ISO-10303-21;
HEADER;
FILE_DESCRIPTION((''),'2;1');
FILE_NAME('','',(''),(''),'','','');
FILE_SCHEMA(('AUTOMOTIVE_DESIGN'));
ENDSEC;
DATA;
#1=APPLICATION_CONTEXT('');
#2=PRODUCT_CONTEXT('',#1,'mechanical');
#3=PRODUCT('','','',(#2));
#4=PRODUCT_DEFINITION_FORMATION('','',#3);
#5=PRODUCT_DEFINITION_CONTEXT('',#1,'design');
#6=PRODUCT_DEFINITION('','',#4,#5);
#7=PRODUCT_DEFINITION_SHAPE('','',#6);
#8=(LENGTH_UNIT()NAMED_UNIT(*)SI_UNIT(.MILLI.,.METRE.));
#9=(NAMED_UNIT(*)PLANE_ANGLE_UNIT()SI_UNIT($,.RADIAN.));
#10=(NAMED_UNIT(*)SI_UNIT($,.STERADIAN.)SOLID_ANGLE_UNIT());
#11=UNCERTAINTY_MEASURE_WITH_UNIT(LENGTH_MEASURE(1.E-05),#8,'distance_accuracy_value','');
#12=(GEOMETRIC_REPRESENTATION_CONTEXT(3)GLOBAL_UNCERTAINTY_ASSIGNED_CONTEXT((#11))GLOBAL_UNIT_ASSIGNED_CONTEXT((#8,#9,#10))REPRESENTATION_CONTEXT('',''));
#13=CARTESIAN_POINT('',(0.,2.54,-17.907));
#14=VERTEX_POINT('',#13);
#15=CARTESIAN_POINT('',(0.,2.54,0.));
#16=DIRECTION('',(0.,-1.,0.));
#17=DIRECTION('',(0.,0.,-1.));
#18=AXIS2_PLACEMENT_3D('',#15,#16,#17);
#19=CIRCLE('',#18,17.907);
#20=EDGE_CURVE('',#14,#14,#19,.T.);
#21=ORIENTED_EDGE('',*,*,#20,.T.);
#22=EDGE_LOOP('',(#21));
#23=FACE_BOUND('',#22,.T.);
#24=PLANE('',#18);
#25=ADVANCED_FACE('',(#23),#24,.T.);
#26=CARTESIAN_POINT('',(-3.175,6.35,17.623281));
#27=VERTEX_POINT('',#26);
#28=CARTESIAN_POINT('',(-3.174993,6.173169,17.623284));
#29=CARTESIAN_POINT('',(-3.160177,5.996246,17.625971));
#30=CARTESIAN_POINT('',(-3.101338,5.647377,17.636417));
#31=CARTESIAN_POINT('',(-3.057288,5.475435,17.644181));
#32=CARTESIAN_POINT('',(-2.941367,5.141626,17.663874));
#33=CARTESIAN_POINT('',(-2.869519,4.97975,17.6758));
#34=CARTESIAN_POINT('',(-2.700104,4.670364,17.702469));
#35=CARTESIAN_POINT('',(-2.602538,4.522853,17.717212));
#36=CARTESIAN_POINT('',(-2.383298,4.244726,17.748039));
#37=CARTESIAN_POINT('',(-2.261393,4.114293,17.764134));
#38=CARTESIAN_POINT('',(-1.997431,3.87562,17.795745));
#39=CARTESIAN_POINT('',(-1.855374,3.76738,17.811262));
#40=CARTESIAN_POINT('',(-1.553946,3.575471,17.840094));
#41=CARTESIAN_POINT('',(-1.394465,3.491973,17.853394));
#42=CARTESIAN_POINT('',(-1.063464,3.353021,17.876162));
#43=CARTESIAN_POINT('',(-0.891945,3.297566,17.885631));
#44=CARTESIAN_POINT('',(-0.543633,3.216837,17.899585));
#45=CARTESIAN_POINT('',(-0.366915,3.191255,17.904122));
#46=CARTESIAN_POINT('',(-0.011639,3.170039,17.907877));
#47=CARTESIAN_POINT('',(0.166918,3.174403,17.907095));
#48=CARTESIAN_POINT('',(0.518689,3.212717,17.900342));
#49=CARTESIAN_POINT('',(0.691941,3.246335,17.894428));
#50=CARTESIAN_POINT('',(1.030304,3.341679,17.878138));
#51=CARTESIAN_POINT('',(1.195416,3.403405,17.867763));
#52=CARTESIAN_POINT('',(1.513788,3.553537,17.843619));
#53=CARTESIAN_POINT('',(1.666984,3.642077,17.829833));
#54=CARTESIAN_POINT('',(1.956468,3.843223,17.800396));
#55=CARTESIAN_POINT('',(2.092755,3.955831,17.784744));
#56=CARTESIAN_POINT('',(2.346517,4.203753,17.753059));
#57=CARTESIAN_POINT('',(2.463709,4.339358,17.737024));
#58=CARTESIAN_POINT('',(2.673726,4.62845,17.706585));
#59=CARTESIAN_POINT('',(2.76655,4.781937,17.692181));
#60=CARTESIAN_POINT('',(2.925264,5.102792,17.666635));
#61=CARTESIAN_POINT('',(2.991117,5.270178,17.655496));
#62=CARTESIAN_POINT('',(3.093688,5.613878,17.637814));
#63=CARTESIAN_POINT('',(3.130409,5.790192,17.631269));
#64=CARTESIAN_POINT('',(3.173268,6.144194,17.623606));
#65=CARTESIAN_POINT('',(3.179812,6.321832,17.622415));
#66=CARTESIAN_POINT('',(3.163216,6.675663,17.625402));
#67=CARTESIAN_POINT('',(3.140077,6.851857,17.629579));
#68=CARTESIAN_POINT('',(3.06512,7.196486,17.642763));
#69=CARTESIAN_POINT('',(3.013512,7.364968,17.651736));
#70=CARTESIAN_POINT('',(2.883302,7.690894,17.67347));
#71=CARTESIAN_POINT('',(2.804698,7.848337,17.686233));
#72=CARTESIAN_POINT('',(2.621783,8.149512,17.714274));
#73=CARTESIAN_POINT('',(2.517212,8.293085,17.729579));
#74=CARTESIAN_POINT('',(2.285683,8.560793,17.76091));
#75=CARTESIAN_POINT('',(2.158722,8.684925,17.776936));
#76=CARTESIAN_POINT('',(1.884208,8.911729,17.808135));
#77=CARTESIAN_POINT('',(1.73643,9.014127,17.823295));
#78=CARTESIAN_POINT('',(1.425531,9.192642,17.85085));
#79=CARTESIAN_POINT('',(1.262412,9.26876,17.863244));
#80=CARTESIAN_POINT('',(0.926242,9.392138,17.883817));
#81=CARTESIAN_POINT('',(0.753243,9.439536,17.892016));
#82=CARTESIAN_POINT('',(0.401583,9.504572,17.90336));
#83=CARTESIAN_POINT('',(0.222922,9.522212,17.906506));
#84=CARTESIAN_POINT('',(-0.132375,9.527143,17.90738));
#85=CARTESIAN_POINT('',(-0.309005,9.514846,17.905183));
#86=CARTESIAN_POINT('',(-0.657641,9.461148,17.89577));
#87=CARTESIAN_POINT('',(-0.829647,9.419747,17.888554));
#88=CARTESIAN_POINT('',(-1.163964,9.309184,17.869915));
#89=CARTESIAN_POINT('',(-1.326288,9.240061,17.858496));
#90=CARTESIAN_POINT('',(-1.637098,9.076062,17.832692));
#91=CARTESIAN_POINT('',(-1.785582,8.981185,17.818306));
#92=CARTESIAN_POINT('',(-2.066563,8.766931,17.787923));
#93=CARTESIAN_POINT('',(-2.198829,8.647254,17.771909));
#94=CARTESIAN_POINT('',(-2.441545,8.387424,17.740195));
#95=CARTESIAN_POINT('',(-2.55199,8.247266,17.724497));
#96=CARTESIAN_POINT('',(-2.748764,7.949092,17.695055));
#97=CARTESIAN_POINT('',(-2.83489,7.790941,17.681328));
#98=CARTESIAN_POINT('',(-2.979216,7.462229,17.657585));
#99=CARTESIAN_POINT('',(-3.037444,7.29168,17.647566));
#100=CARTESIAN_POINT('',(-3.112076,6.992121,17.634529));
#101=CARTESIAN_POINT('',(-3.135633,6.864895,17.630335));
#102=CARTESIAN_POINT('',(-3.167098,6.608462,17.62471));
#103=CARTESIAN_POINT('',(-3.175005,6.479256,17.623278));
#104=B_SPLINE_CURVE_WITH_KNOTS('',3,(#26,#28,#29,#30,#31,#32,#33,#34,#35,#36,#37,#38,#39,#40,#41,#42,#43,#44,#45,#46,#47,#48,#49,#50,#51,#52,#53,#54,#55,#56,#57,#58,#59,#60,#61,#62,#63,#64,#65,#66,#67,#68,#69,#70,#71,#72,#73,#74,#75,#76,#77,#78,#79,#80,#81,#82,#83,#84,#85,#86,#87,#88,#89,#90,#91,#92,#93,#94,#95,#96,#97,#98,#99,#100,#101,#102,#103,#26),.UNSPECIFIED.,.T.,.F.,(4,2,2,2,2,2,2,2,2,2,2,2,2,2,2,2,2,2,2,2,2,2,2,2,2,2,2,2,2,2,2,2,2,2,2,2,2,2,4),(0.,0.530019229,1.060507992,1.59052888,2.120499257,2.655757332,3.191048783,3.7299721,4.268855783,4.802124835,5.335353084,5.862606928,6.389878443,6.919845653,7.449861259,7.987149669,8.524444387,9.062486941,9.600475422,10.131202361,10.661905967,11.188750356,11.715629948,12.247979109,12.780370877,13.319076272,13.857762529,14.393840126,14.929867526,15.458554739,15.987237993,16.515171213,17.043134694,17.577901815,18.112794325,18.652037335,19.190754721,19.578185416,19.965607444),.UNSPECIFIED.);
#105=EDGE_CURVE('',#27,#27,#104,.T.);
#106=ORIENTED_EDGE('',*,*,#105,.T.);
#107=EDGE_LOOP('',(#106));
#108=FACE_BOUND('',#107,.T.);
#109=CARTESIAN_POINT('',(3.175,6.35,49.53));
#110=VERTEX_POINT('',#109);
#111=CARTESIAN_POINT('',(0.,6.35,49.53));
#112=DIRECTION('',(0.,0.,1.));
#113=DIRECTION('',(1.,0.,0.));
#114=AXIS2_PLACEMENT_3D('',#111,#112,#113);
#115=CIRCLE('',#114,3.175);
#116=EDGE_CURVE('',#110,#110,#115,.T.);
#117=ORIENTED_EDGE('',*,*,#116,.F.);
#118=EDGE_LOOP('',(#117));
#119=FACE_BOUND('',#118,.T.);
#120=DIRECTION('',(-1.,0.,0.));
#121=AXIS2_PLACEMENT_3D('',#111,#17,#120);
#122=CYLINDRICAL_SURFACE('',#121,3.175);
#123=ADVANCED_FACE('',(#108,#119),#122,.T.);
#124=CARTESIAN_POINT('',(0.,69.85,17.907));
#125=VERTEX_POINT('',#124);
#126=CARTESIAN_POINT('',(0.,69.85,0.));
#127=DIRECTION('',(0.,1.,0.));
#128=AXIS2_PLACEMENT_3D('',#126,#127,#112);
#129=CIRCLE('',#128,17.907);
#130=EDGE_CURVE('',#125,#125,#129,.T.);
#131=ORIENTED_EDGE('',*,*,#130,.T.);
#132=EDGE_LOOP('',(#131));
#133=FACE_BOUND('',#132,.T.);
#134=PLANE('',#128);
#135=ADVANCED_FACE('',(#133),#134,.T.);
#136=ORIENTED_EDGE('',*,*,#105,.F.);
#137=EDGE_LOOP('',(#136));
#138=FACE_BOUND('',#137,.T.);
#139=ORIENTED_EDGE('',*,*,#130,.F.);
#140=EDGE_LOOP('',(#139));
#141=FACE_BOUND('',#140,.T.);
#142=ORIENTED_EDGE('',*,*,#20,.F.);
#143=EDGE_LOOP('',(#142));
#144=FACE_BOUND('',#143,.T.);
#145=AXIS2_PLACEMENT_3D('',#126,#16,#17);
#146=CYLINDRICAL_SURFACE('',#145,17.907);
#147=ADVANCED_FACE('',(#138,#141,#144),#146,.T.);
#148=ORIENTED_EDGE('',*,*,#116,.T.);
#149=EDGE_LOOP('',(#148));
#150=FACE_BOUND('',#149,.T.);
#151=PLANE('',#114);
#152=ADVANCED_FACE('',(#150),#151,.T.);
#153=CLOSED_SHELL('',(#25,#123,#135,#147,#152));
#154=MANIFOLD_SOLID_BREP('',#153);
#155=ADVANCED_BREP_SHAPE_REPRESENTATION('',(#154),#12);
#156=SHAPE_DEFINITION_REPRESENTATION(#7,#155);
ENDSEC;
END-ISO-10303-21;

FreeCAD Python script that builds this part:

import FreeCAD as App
import Part
import Sketcher

V = App.Vector
Q = App.Units.Quantity

doc = App.newDocument("Part")
params = doc.addObject("Spreadsheet::Sheet", "Params")
for row, (alias, value) in enumerate([
    ("sketch1_diameter", "1.41 in"),
    ("pad1_length", "2.75 in"),
    ("sketch2_diameter", "0.25 in"),
    ("pad2_length", "1.95 in"),
    ("sketch3_diameter", "1.41 in"),
    ("pocket1_length", "0.1 in"),
], start=1):
    params.set(f"A{row}", alias)
    params.set(f"B{row}", "=" + value)
    params.setAlias(f"B{row}", alias)

body = doc.addObject("PartDesign::Body", "Body")

# Sketch on XZ plane
sketch1 = doc.addObject("Sketcher::SketchObject", "Sketch")
body.addObject(sketch1)
sketch1.AttachmentSupport = (doc.XZ_Plane, [""])
sketch1.MapMode = "FlatFace"
sketch1.addGeometry(Part.Circle(V(0, 0, 0), V(0, 0, 1), 17.907), False)
sketch1.addConstraint([
    Sketcher.Constraint("Coincident", 0, 3, -1, 1),
    Sketcher.Constraint("Diameter", 0, Q("1.41 in")),
])
sketch1.setExpression("Constraints[1]", "Params.sketch1_diameter")
pad1 = doc.addObject("PartDesign::Pad", "Pad")
body.addObject(pad1)
pad1.Profile = sketch1
pad1.setExpression("Length", "Params.pad1_length")
pad1.Reversed = True

# Sketch on XY plane
sketch2 = doc.addObject("Sketcher::SketchObject", "Sketch001")
body.addObject(sketch2)
sketch2.AttachmentSupport = (doc.XY_Plane, [""])
sketch2.MapMode = "FlatFace"
sketch2.addGeometry(Part.Circle(V(0, 6.35, 0), V(0, 0, 1), 3.175), False)
sketch2.addConstraint([
    Sketcher.Constraint("PointOnObject", 0, 3, -2),
    Sketcher.Constraint("Diameter", 0, Q("0.25 in")),
    Sketcher.Constraint("DistanceY", -1, 1, 0, 3, Q("0.25 in")),
])
sketch2.setExpression("Constraints[1]", "Params.sketch2_diameter")
pad2 = doc.addObject("PartDesign::Pad", "Pad001")
body.addObject(pad2)
pad2.Profile = sketch2
pad2.setExpression("Length", "Params.pad2_length")

# Sketch on XZ plane
sketch3 = doc.addObject("Sketcher::SketchObject", "Sketch002")
body.addObject(sketch3)
sketch3.AttachmentSupport = (doc.XZ_Plane, [""])
sketch3.MapMode = "FlatFace"
sketch3.addGeometry(Part.Circle(V(0, 0, 0), V(0, 0, 1), 17.907), False)
sketch3.addConstraint([
    Sketcher.Constraint("Coincident", 0, 3, -1, 1),
    Sketcher.Constraint("Diameter", 0, Q("1.41 in")),
])
sketch3.setExpression("Constraints[1]", "Params.sketch3_diameter")
pocket1 = doc.addObject("PartDesign::Pocket", "Pocket")
body.addObject(pocket1)
pocket1.Profile = sketch3
pocket1.setExpression("Length", "Params.pocket1_length")

doc.recompute()
